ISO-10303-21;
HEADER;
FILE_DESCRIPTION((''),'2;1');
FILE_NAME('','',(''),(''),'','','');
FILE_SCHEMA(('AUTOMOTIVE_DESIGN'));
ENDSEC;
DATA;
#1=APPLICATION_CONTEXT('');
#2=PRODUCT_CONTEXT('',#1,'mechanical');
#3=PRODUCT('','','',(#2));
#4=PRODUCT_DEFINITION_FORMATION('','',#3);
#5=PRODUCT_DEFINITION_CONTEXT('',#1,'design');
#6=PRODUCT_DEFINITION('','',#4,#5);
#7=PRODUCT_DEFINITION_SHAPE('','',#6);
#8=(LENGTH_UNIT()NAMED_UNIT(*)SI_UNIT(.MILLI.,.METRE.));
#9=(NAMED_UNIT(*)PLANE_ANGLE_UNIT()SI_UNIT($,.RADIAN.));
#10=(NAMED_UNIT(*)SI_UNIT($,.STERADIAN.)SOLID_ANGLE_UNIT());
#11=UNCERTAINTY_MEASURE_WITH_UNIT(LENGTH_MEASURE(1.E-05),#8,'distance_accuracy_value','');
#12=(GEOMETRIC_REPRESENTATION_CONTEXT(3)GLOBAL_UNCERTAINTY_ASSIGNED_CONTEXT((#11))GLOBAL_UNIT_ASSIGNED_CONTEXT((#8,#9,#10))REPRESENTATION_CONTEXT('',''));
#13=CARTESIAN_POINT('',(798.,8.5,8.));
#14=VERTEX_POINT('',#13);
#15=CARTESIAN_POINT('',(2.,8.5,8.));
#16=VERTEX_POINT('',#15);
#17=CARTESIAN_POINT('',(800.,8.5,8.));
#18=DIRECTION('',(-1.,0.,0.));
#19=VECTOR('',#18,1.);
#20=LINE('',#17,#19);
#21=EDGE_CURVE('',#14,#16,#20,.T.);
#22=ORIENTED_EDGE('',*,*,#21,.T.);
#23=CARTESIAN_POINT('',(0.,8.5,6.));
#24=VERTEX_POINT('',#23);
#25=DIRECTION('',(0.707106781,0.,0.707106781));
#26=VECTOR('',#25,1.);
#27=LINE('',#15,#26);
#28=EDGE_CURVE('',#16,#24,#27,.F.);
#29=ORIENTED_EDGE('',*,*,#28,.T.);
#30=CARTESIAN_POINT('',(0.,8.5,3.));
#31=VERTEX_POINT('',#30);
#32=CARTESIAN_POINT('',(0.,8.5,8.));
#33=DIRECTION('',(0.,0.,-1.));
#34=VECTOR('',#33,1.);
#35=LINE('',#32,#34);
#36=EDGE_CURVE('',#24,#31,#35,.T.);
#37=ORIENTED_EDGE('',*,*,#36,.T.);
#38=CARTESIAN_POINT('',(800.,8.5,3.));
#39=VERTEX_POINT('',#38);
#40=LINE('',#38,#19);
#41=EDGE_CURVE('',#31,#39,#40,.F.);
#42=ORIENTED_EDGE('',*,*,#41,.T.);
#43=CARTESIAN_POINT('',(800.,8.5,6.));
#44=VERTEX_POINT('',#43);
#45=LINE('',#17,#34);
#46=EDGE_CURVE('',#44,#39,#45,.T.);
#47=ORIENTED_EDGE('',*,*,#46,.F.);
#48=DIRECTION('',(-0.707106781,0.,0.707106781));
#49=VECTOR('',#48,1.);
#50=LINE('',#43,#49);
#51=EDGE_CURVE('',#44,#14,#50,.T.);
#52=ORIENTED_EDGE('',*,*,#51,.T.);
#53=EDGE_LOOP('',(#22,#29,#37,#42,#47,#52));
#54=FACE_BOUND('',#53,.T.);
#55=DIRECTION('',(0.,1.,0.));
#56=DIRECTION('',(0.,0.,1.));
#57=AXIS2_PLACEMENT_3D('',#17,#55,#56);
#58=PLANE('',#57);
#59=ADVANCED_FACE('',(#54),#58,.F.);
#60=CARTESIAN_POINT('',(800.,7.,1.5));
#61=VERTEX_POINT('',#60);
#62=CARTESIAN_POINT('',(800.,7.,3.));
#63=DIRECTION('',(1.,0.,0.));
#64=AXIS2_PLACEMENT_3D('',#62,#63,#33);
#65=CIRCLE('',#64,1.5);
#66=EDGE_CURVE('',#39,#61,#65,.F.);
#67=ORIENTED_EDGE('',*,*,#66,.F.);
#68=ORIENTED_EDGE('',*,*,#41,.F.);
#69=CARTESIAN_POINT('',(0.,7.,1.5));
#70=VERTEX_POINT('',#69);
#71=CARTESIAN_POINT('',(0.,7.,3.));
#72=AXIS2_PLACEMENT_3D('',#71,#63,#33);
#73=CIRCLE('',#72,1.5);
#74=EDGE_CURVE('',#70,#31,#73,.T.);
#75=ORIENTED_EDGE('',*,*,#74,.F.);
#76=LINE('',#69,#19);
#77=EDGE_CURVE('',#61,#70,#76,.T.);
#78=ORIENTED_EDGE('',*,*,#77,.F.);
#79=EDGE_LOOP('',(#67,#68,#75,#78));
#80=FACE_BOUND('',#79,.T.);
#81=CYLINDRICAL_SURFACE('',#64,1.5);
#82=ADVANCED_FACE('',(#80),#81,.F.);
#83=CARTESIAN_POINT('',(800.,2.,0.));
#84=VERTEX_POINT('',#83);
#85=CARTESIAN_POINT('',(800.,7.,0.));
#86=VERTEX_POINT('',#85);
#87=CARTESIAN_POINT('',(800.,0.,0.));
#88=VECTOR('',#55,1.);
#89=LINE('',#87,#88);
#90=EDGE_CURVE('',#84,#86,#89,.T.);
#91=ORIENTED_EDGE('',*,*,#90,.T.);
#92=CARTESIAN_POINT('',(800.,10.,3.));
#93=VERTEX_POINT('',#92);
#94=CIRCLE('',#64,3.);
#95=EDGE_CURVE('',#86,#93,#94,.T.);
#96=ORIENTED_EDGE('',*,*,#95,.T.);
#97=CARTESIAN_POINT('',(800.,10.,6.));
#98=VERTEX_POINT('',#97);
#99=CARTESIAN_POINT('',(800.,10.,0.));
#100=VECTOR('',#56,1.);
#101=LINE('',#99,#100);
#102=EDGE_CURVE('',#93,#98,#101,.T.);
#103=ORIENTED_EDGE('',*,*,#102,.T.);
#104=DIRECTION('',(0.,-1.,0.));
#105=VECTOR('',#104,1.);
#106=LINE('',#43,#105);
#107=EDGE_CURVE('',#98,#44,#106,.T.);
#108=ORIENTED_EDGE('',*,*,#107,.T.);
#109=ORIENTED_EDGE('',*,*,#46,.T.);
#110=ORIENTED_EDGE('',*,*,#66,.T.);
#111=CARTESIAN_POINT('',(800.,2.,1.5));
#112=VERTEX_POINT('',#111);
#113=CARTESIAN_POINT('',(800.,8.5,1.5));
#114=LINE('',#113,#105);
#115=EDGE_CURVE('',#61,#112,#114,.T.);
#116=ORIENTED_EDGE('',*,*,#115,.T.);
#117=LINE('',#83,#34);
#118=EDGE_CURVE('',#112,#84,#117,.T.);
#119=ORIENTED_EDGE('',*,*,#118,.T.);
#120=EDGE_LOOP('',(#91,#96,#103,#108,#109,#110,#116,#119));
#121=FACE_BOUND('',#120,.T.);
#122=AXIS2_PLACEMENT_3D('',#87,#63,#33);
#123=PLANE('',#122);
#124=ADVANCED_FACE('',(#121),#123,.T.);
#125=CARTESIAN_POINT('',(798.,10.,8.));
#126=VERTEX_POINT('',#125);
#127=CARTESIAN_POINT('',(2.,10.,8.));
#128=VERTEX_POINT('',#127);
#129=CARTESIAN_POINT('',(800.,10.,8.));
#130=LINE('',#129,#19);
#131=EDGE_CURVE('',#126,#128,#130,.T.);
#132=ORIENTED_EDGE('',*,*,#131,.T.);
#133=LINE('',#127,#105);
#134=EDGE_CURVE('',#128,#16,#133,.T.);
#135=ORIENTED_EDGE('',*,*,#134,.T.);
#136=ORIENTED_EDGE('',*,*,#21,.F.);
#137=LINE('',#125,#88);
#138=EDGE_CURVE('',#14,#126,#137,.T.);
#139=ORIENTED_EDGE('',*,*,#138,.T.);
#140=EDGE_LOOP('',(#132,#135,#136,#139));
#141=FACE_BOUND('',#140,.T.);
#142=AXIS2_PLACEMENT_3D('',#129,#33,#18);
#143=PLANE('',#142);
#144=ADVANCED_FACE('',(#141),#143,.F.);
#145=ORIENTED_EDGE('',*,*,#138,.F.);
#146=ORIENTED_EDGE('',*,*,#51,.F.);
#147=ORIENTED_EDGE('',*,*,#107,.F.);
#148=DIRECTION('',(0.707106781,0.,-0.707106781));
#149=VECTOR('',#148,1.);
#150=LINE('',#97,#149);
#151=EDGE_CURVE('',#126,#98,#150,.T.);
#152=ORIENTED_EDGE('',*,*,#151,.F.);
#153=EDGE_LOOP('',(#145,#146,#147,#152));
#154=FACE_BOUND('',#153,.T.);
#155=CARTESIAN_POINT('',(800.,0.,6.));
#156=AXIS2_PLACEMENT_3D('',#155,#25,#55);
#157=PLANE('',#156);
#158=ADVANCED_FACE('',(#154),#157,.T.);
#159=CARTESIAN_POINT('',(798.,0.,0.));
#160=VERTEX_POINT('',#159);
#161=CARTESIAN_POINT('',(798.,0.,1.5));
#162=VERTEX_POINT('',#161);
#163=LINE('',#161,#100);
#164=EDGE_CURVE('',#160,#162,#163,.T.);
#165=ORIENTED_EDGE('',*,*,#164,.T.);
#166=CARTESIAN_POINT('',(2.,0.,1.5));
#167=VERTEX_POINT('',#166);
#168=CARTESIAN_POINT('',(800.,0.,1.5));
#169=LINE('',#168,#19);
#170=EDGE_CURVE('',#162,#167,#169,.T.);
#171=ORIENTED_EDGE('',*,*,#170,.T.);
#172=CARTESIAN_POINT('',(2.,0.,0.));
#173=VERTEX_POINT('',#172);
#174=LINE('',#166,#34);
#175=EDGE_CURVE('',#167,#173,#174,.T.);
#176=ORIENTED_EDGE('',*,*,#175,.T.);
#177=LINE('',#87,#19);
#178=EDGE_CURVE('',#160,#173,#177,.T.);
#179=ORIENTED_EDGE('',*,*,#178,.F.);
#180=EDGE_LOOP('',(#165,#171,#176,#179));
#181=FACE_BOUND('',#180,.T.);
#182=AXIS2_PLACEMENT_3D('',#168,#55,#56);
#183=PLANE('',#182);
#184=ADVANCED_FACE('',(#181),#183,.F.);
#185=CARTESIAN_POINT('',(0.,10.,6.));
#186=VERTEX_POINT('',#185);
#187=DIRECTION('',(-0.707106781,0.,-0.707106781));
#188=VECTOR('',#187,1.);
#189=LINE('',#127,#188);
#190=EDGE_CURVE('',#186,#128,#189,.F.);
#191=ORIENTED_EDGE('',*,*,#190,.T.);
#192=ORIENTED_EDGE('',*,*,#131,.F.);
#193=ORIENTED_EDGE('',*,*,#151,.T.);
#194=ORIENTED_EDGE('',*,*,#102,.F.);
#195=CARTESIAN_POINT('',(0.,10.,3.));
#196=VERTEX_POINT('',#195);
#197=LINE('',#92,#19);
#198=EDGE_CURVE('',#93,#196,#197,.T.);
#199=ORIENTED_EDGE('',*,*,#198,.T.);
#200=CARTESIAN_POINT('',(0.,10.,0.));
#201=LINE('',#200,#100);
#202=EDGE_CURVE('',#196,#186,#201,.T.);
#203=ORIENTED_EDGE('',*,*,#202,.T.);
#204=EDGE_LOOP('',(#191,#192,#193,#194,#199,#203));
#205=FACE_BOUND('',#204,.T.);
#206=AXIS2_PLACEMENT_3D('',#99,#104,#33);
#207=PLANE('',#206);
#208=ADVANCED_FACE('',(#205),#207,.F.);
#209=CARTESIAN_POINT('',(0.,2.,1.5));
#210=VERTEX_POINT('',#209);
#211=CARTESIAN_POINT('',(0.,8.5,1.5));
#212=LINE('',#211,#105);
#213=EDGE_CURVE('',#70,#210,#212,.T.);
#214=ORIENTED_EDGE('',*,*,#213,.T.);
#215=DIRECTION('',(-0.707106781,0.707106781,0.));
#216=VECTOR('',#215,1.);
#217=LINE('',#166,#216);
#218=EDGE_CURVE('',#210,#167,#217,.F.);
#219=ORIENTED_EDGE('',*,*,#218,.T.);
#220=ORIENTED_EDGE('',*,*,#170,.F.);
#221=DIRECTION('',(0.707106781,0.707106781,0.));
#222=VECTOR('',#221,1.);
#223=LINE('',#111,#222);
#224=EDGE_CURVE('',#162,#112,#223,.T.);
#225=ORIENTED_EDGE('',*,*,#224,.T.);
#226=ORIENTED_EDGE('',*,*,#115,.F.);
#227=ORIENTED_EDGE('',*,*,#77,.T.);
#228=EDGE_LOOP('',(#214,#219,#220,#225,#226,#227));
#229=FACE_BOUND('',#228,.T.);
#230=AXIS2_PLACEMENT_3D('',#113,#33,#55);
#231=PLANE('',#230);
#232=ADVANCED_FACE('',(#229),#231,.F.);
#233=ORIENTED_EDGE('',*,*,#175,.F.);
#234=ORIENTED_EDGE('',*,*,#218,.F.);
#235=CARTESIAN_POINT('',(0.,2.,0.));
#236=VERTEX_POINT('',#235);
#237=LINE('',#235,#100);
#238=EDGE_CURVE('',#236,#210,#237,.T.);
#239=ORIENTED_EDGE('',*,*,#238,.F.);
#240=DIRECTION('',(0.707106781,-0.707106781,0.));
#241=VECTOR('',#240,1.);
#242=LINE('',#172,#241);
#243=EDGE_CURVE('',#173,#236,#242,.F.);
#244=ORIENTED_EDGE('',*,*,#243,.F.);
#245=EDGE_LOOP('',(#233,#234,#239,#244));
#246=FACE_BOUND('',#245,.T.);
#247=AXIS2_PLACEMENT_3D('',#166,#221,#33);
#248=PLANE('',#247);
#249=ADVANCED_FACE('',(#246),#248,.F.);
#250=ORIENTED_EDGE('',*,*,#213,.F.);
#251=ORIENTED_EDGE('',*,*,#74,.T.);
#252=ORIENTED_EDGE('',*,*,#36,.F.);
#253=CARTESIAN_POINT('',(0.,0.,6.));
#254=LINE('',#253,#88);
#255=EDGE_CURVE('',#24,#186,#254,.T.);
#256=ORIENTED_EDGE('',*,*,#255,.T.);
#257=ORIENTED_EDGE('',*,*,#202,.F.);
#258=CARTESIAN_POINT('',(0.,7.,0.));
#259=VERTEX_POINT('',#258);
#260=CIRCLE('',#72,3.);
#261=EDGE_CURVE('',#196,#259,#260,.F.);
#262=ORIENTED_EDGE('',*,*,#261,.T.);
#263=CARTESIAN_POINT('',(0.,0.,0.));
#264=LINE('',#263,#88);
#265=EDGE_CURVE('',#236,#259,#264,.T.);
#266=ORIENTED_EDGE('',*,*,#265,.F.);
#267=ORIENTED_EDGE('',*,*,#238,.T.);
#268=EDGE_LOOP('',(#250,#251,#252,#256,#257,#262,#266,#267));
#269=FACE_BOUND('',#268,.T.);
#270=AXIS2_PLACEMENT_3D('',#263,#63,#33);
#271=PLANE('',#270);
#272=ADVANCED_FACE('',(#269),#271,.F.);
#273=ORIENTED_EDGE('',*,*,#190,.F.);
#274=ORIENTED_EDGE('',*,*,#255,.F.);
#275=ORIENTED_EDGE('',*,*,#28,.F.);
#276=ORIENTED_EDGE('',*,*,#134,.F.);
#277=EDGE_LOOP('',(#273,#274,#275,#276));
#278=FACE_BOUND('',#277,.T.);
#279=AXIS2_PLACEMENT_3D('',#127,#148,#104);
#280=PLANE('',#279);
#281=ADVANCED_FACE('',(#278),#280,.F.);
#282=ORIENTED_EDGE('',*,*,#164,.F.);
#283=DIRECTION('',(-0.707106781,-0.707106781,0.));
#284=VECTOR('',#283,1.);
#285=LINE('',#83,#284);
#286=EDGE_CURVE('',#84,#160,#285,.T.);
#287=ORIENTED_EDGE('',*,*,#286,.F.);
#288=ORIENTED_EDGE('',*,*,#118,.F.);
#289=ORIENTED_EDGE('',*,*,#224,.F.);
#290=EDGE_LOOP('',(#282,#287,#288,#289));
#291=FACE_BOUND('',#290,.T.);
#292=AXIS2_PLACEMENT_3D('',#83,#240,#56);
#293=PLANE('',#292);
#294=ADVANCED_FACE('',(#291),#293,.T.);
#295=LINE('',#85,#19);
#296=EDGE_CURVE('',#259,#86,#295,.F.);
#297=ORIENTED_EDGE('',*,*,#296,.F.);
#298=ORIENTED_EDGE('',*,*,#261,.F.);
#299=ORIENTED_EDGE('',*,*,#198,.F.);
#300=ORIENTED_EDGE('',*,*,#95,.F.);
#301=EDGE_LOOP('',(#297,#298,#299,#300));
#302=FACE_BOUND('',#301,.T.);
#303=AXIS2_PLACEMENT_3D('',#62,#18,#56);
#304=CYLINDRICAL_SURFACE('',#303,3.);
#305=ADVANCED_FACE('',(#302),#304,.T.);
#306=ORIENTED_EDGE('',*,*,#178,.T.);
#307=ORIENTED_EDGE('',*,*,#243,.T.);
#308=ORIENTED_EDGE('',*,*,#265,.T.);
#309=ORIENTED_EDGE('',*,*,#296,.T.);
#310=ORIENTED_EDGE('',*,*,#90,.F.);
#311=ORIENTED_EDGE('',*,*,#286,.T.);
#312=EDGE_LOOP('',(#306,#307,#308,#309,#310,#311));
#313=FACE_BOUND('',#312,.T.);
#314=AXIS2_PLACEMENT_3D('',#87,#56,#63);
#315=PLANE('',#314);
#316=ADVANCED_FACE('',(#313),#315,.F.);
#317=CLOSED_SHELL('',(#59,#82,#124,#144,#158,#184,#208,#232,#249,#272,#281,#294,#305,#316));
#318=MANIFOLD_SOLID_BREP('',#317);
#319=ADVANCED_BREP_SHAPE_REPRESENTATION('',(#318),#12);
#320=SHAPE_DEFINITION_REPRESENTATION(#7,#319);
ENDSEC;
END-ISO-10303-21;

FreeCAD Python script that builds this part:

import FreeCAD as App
import Part
import Sketcher
Q = App.Units.Quantity


def edges_at(feature, points):
    """Names of the edges that pass closest to the given points."""
    edges = feature.Shape.Edges
    near = lambda p: min(range(len(edges)), key=lambda i: edges[i].distToShape(Part.Vertex(*p))[0])
    return sorted({f"Edge{near(p) + 1}" for p in points})


def add_polygon(sketch, points):
    """Adds a closed chain of lines whose ends are joined by coincident constraints."""
    first, n = sketch.GeometryCount, len(points)
    for a, b in zip(points, points[1:] + points[:1]):
        sketch.addGeometry(Part.LineSegment(App.Vector(*a, 0), App.Vector(*b, 0)), False)
    for i in range(n):
        sketch.addConstraint(Sketcher.Constraint("Coincident", first + i, 2, first + (i + 1) % n, 1))

doc = App.newDocument("Part")
body = doc.addObject("PartDesign::Body", "Body")

# Sketch on YZ plane
sketch1 = doc.addObject("Sketcher::SketchObject", "Sketch")
body.addObject(sketch1)
sketch1.AttachmentSupport = (doc.YZ_Plane, [""])
sketch1.MapMode = "FlatFace"
add_polygon(sketch1, [(0, 0), (10, 0), (10, 8), (8.5, 8), (8.5, 1.5), (0, 1.5)])  # lines 0-5
sketch1.addConstraint(Sketcher.Constraint("Horizontal", 0))
sketch1.addConstraint(Sketcher.Constraint("Vertical", 1))
sketch1.addConstraint(Sketcher.Constraint("Horizontal", 2))
sketch1.addConstraint(Sketcher.Constraint("Vertical", 3))
sketch1.addConstraint(Sketcher.Constraint("Horizontal", 4))
sketch1.addConstraint(Sketcher.Constraint("Vertical", 5))
sketch1.addConstraint(Sketcher.Constraint("Coincident", 5, 2, -1, 1))
sketch1.addConstraint(Sketcher.Constraint("Equal", 2, 5))
sketch1.addConstraint(Sketcher.Constraint("DistanceX", 0, 1, 0, 2, Q("10 mm")))
sketch1.addConstraint(Sketcher.Constraint("DistanceY", 1, 1, 1, 2, Q("8 mm")))
sketch1.addConstraint(Sketcher.Constraint("DistanceX", 2, 2, 2, 1, Q("1.5 mm")))
pad1 = doc.addObject("PartDesign::Pad", "Pad")
body.addObject(pad1)
pad1.Profile = sketch1
pad1.Length = 800
doc.recompute()

fillet = doc.addObject("PartDesign::Fillet", "Fillet")
body.addObject(fillet)
fillet.Base = (pad1, edges_at(pad1, [(400, 10, 0)]))
fillet.Radius = 3
doc.recompute()

fillet2 = doc.addObject("PartDesign::Fillet", "Fillet001")
body.addObject(fillet2)
fillet2.Base = (fillet, edges_at(fillet, [(400, 8.5, 1.5)]))
fillet2.Radius = 1.5
doc.recompute()

chamfer = doc.addObject("PartDesign::Chamfer", "Chamfer")
body.addObject(chamfer)
chamfer.Base = (fillet2, edges_at(fillet2, [
    (800, 9.25, 8),
    (800, 0, 0.75),
    (0, 9.25, 8),
    (0, 0, 0.75),
]))
chamfer.Size = 2

doc.recompute()
